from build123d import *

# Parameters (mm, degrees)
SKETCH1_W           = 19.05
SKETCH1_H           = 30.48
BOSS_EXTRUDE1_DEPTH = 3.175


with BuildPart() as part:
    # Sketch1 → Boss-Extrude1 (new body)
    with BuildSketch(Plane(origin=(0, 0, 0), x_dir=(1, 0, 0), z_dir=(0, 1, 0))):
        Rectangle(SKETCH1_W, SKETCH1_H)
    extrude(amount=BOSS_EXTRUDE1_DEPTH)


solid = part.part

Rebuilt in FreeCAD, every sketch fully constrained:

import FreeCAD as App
import Part
import Sketcher

V = App.Vector
Q = App.Units.Quantity


def add_polygon(sketch, points):
    """Adds a closed chain of lines whose ends are joined by coincident constraints."""
    first, n = sketch.GeometryCount, len(points)
    for a, b in zip(points, points[1:] + points[:1]):
        sketch.addGeometry(Part.LineSegment(App.Vector(*a, 0), App.Vector(*b, 0)), False)
    for i in range(n):
        sketch.addConstraint(Sketcher.Constraint("Coincident", first + i, 2, first + (i + 1) % n, 1))

doc = App.newDocument("Part")
body = doc.addObject("PartDesign::Body", "Body")

# Sketch on XZ plane
sketch1 = doc.addObject("Sketcher::SketchObject", "Sketch")
body.addObject(sketch1)
sketch1.AttachmentSupport = (doc.XZ_Plane, [""])
sketch1.MapMode = "FlatFace"
add_polygon(sketch1, [(-9.525, -15.24), (-9.525, 15.24), (9.525, 15.24), (9.525, -15.24)])  # lines 0-3
sketch1.addConstraint([
    Sketcher.Constraint("Vertical", 0),
    Sketcher.Constraint("Horizontal", 1),
    Sketcher.Constraint("Vertical", 2),
    Sketcher.Constraint("Horizontal", 3),
    Sketcher.Constraint("Symmetric", 0, 2, 2, 2, -1, 1),
    Sketcher.Constraint("DistanceY", 0, 1, 0, 2, Q("1.2 in")),
    Sketcher.Constraint("DistanceX", 1, 1, 1, 2, Q("0.75 in")),
])
pad1 = doc.addObject("PartDesign::Pad", "Pad")
body.addObject(pad1)
pad1.Profile = sketch1
pad1.Length = Q("0.125 in")
pad1.Reversed = True

doc.recompute()
